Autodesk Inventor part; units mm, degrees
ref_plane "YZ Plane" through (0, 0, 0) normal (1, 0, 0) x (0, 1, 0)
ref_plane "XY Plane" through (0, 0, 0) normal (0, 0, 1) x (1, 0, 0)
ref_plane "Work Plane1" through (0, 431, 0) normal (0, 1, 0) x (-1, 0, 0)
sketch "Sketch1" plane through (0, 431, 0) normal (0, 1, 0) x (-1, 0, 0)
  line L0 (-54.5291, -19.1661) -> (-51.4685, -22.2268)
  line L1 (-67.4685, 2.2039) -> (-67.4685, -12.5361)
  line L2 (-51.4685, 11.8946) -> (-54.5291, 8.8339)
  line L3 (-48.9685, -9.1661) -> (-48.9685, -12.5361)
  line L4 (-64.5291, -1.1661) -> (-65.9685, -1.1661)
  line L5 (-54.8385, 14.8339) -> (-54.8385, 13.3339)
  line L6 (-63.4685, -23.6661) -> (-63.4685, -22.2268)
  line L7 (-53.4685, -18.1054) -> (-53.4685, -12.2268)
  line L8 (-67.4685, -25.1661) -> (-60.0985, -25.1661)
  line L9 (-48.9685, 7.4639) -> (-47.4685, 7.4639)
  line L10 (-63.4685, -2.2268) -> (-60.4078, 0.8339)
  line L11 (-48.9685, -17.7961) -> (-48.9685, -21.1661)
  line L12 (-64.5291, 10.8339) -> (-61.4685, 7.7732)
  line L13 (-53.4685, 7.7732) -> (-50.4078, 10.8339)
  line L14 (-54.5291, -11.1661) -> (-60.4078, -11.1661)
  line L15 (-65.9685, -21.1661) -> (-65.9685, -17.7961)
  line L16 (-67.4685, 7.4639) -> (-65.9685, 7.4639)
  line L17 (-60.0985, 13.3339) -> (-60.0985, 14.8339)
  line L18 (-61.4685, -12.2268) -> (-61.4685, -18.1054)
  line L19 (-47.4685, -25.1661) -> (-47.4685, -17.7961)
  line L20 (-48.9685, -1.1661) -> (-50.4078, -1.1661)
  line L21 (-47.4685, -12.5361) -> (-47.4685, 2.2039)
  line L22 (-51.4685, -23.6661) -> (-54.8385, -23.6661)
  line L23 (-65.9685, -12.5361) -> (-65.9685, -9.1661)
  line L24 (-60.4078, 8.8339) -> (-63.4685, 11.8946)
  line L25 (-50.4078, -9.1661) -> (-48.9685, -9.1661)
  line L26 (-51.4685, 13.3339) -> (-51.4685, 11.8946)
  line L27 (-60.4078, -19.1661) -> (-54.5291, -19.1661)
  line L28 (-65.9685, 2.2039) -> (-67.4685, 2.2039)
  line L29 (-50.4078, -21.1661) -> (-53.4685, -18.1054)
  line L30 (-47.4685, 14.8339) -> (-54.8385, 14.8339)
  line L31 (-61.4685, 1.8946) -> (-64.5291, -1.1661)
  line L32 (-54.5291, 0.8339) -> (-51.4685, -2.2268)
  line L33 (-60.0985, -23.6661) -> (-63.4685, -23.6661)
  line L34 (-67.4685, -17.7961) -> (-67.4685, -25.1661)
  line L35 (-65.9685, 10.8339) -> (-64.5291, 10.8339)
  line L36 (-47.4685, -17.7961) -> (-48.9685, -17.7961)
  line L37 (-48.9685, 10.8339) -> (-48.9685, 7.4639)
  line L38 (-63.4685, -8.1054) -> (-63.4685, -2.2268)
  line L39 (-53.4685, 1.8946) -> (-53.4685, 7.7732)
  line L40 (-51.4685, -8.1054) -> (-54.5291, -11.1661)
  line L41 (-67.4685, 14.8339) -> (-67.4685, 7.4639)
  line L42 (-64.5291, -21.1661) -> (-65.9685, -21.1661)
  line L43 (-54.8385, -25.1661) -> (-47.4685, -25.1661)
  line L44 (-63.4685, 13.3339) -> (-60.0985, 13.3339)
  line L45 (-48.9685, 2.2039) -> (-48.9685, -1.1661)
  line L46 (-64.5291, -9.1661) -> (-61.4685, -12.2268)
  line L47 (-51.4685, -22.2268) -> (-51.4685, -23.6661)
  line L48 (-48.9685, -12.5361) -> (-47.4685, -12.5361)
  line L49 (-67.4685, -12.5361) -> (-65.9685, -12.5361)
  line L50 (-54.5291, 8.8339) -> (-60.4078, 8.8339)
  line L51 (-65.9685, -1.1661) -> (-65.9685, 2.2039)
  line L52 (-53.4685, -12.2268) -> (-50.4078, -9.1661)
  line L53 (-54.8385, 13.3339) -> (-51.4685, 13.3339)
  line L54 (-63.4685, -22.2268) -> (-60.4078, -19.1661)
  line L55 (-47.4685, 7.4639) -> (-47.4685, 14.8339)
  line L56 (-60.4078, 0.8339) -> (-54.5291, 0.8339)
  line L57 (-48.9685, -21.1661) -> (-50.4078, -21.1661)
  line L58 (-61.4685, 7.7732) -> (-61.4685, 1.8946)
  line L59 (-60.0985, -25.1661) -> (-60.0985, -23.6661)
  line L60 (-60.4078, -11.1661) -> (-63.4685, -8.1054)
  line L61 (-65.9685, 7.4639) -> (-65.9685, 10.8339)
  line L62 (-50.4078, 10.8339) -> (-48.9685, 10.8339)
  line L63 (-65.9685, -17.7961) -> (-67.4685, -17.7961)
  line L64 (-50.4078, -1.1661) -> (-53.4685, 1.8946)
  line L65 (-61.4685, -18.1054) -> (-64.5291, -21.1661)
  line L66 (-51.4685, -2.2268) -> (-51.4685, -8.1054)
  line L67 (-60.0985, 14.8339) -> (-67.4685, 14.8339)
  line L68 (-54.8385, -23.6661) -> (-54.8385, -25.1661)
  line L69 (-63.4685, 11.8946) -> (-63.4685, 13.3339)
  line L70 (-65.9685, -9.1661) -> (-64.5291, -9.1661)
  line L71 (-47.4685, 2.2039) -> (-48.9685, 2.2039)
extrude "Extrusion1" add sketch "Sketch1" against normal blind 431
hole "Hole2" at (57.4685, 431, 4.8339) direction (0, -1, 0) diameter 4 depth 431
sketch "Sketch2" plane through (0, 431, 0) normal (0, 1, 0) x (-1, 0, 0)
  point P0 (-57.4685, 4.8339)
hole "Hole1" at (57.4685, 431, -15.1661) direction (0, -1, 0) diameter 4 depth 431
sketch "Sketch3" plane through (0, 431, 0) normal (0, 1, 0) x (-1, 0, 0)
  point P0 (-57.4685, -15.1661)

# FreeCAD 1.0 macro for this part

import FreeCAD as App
import Part
import Sketcher
Q = App.Units.Quantity


def add_polygon(sketch, points):
    """Adds a closed chain of lines whose ends are joined by coincident constraints."""
    first, n = sketch.GeometryCount, len(points)
    for a, b in zip(points, points[1:] + points[:1]):
        sketch.addGeometry(Part.LineSegment(App.Vector(*a, 0), App.Vector(*b, 0)), False)
    for i in range(n):
        sketch.addConstraint(Sketcher.Constraint("Coincident", first + i, 2, first + (i + 1) % n, 1))

doc = App.newDocument("Part")
body = doc.addObject("PartDesign::Body", "Body")

# Sketch on XZ plane
sketch1 = body.newObject("Sketcher::SketchObject", "Sketch")
sketch1.AttachmentSupport = (doc.getObject("XZ_Plane"), [""])
sketch1.MapMode = "FlatFace"
sketch1.AttachmentOffset = App.Placement(App.Vector(0, 0, -431), App.Rotation())
add_polygon(sketch1, [(60.4, -19.2), (54.5, -19.2), (51.5, -22.2), (51.5, -23.7), (54.8, -23.7), (54.8, -25.2), (47.5, -25.2), (47.5, -17.8), (49, -17.8), (49, -21.2), (50.4, -21.2), (53.5, -18.1), (53.5, -12.2), (50.4, -9.2), (49, -9.2), (49, -12.5), (47.5, -12.5), (47.5, 2.2), (49, 2.2), (49, -1.2), (50.4, -1.2), (53.5, 1.9), (53.5, 7.8), (50.4, 10.8), (49, 10.8), (49, 7.5), (47.5, 7.5), (47.5, 14.8), (54.8, 14.8), (54.8, 13.3), (51.5, 13.3), (51.5, 11.9), (54.5, 8.8), (60.4, 8.8), (63.5, 11.9), (63.5, 13.3), (60.1, 13.3), (60.1, 14.8), (67.5, 14.8), (67.5, 7.5), (66, 7.5), (66, 10.8), (64.5, 10.8), (61.5, 7.8), (61.5, 1.9), (64.5, -1.2), (66, -1.2), (66, 2.2), (67.5, 2.2), (67.5, -12.5), (66, -12.5), (66, -9.2), (64.5, -9.2), (61.5, -12.2), (61.5, -18.1), (64.5, -21.2), (66, -21.2), (66, -17.8), (67.5, -17.8), (67.5, -25.2), (60.1, -25.2), (60.1, -23.7), (63.5, -23.7), (63.5, -22.2)])  # lines 0-63
add_polygon(sketch1, [(63.5, -8.1), (63.5, -2.2), (60.4, 0.8), (54.5, 0.8), (51.5, -2.2), (51.5, -8.1), (54.5, -11.2), (60.4, -11.2)])  # lines 64-71
sketch1.addConstraint([
    Sketcher.Constraint("Horizontal", 0),
    Sketcher.Constraint("Vertical", 2),
    Sketcher.Constraint("Horizontal", 3),
    Sketcher.Constraint("Vertical", 4),
    Sketcher.Constraint("Horizontal", 5),
    Sketcher.Constraint("Vertical", 6),
    Sketcher.Constraint("Horizontal", 7),
    Sketcher.Constraint("Vertical", 8),
    Sketcher.Constraint("Horizontal", 9),
    Sketcher.Constraint("Vertical", 11),
    Sketcher.Constraint("Horizontal", 13),
    Sketcher.Constraint("Vertical", 14),
    Sketcher.Constraint("Horizontal", 15),
    Sketcher.Constraint("Vertical", 16),
    Sketcher.Constraint("Horizontal", 17),
    Sketcher.Constraint("Vertical", 18),
    Sketcher.Constraint("Horizontal", 19),
    Sketcher.Constraint("Vertical", 21),
    Sketcher.Constraint("Horizontal", 23),
    Sketcher.Constraint("Vertical", 24),
    Sketcher.Constraint("Horizontal", 25),
    Sketcher.Constraint("Vertical", 26),
    Sketcher.Constraint("Horizontal", 27),
    Sketcher.Constraint("Vertical", 28),
    Sketcher.Constraint("Horizontal", 29),
    Sketcher.Constraint("Vertical", 30),
    Sketcher.Constraint("Horizontal", 32),
    Sketcher.Constraint("Vertical", 34),
    Sketcher.Constraint("Horizontal", 35),
    Sketcher.Constraint("Vertical", 36),
    Sketcher.Constraint("Horizontal", 37),
    Sketcher.Constraint("Vertical", 38),
    Sketcher.Constraint("Horizontal", 39),
    Sketcher.Constraint("Vertical", 40),
    Sketcher.Constraint("Horizontal", 41),
    Sketcher.Constraint("Vertical", 43),
    Sketcher.Constraint("Horizontal", 45),
    Sketcher.Constraint("Vertical", 46),
    Sketcher.Constraint("Horizontal", 47),
    Sketcher.Constraint("Vertical", 48),
    Sketcher.Constraint("Horizontal", 49),
    Sketcher.Constraint("Vertical", 50),
    Sketcher.Constraint("Horizontal", 51),
    Sketcher.Constraint("Vertical", 53),
    Sketcher.Constraint("Horizontal", 55),
    Sketcher.Constraint("Vertical", 56),
    Sketcher.Constraint("Horizontal", 57),
    Sketcher.Constraint("Vertical", 58),
    Sketcher.Constraint("Horizontal", 59),
    Sketcher.Constraint("Vertical", 60),
    Sketcher.Constraint("Horizontal", 61),
    Sketcher.Constraint("Vertical", 62),
    Sketcher.Constraint("Vertical", 64),
    Sketcher.Constraint("Horizontal", 66),
    Sketcher.Constraint("Vertical", 68),
    Sketcher.Constraint("Horizontal", 70),
    Sketcher.Constraint("Parallel", 1, 10),
    Sketcher.Constraint("Perpendicular", 10, 12),
    Sketcher.Constraint("Perpendicular", 12, 20),
    Sketcher.Constraint("Perpendicular", 20, 22),
    Sketcher.Constraint("Parallel", 22, 31),
    Sketcher.Constraint("Perpendicular", 31, 33),
    Sketcher.Constraint("Parallel", 33, 42),
    Sketcher.Constraint("Perpendicular", 42, 44),
    Sketcher.Constraint("Perpendicular", 44, 52),
    Sketcher.Constraint("Perpendicular", 52, 54),
    Sketcher.Constraint("Parallel", 54, 63),
    Sketcher.Constraint("Parallel", 63, 65),
    Sketcher.Constraint("Perpendicular", 65, 67),
    Sketcher.Constraint("Perpendicular", 67, 69),
    Sketcher.Constraint("Perpendicular", 69, 71),
    Sketcher.Constraint("Horizontal", 30, 2, 33, 2),
    Sketcher.Constraint("Horizontal", 29, 2, 34, 2),
    Sketcher.Constraint("Horizontal", 27, 2, 36, 2),
    Sketcher.Constraint("Horizontal", 25, 2, 38, 2),
    Sketcher.Constraint("Horizontal", 23, 2, 40, 2),
    Sketcher.Constraint("Horizontal", 21, 2, 42, 2),
    Sketcher.Constraint("Horizontal", 20, 2, 43, 2),
    Sketcher.Constraint("Horizontal", 19, 2, 44, 2),
    Sketcher.Constraint("Horizontal", 17, 2, 46, 2),
    Sketcher.Constraint("Horizontal", 15, 2, 48, 2),
    Sketcher.Constraint("Horizontal", 13, 2, 50, 2),
    Sketcher.Constraint("Horizontal", 11, 2, 52, 2),
    Sketcher.Constraint("Horizontal", 10, 2, 53, 2),
    Sketcher.Constraint("Horizontal", 9, 2, 54, 2),
    Sketcher.Constraint("Horizontal", 7, 2, 56, 2),
    Sketcher.Constraint("Horizontal", 5, 2, 58, 2),
    Sketcher.Constraint("Horizontal", 3, 2, 60, 2),
    Sketcher.Constraint("Horizontal", 1, 2, 62, 2),
    Sketcher.Constraint("Horizontal", 64, 2, 67, 2),
    Sketcher.Constraint("Horizontal", 68, 2, 71, 2),
    Sketcher.Constraint("Vertical", 9, 2, 12, 2),
    Sketcher.Constraint("Vertical", 8, 2, 13, 2),
    Sketcher.Constraint("Vertical", 6, 2, 15, 2),
    Sketcher.Constraint("Vertical", 14, 2, 17, 2),
    Sketcher.Constraint("Vertical", 12, 2, 19, 2),
    Sketcher.Constraint("Vertical", 11, 2, 20, 2),
    Sketcher.Constraint("Vertical", 19, 2, 22, 2),
    Sketcher.Constraint("Vertical", 18, 2, 23, 2),
    Sketcher.Constraint("Vertical", 16, 2, 25, 2),
    Sketcher.Constraint("Vertical", 4, 2, 27, 2),
    Sketcher.Constraint("Vertical", 2, 2, 29, 2),
    Sketcher.Constraint("Vertical", 0, 2, 31, 2),
    Sketcher.Constraint("Vertical", 41, 2, 44, 2),
    Sketcher.Constraint("Vertical", 40, 2, 45, 2),
    Sketcher.Constraint("Vertical", 38, 2, 47, 2),
    Sketcher.Constraint("Vertical", 46, 2, 49, 2),
    Sketcher.Constraint("Vertical", 44, 2, 51, 2),
    Sketcher.Constraint("Vertical", 50, 2, 55, 2),
    Sketcher.Constraint("Vertical", 48, 2, 57, 2),
    Sketcher.Constraint("Vertical", 36, 2, 59, 2),
    Sketcher.Constraint("Vertical", 34, 2, 61, 2),
    Sketcher.Constraint("Vertical", 62, 2, 64, 2),
    Sketcher.Constraint("Vertical", 63, 2, 65, 2),
    Sketcher.Constraint("Vertical", 31, 2, 66, 2),
    Sketcher.Constraint("Vertical", 66, 2, 69, 2),
    Sketcher.Constraint("Equal", 29, 35),
    Sketcher.Constraint("Equal", 27, 37),
    Sketcher.Constraint("Equal", 25, 39),
    Sketcher.Constraint("Equal", 23, 41),
    Sketcher.Constraint("Equal", 55, 2),
    Sketcher.Constraint("Equal", 57, 4),
    Sketcher.Constraint("Equal", 59, 6),
    Sketcher.Constraint("Equal", 61, 8),
    Sketcher.Constraint("Equal", 70, 11),
    Sketcher.Constraint("Equal", 8, 14),
    Sketcher.Constraint("Equal", 14, 18),
    Sketcher.Constraint("Equal", 11, 21),
    Sketcher.Constraint("Equal", 18, 24),
    Sketcher.Constraint("Equal", 6, 26),
    Sketcher.Constraint("Equal", 4, 28),
    Sketcher.Constraint("Equal", 2, 30),
    Sketcher.Constraint("Equal", 53, 64),
    Sketcher.Constraint("Equal", 1, 10),
    Sketcher.Constraint("DistanceX", 7, 1, 7, 2, Q("1.5 mm")),
    Sketcher.Constraint("DistanceX", 3, 1, 3, 2, Q("3.37 mm")),
    Sketcher.Constraint("DistanceX", 5, 2, 5, 1, Q("7.37 mm")),
    Sketcher.Constraint("DistanceY", 16, 1, 16, 2, Q("14.74 mm")),
    Sketcher.Constraint("DistanceX", 0, 2, 0, 1, Q("5.8787 mm")),
    Sketcher.Constraint("DistanceX", 9, 1, 9, 2, Q("1.4393 mm")),
    Sketcher.Constraint("DistanceX", -1, 1, 0, 2, Q("54.529 mm")),
    Sketcher.Constraint("DistanceY", 0, 2, -1, 1, Q("19.166 mm")),
    Sketcher.Constraint("DistanceY", 2, 2, -1, 1, Q("23.666 mm")),
    Sketcher.Constraint("DistanceY", -1, 1, 65, 2, Q("0.834 mm")),
])
pad1 = body.newObject("PartDesign::Pad", "Pad")
pad1.Profile = sketch1
pad1.Length = 431

# Sketch on XZ plane
sketch2 = body.newObject("Sketcher::SketchObject", "Sketch001")
sketch2.AttachmentSupport = (doc.getObject("XZ_Plane"), [""])
sketch2.MapMode = "FlatFace"
sketch2.AttachmentOffset = App.Placement(App.Vector(0, 0, -431), App.Rotation())
sketch2.addGeometry(Part.Circle(App.Vector(57.5, 4.8, 0), App.Vector(0, 0, 1), 2), False)
sketch2.addConstraint([
    Sketcher.Constraint("Diameter", 0, Q("4 mm")),
    Sketcher.Constraint("DistanceY", -1, 1, 0, 3, Q("4.834 mm")),
    Sketcher.Constraint("DistanceX", -1, 1, 0, 3, Q("57.4685 mm")),
])
doc.recompute()
hole = body.newObject("PartDesign::Hole", "Hole")
hole.Profile = sketch2
hole.ThreadType = "None"
hole.Diameter = 4
hole.DepthType = "Dimension"
hole.Depth = 431
hole.DrillPoint = "Flat"
hole.Reversed = True

# Sketch on XZ plane
sketch3 = body.newObject("Sketcher::SketchObject", "Sketch002")
sketch3.AttachmentSupport = (doc.getObject("XZ_Plane"), [""])
sketch3.MapMode = "FlatFace"
sketch3.AttachmentOffset = App.Placement(App.Vector(0, 0, -431), App.Rotation())
sketch3.addGeometry(Part.Circle(App.Vector(57.5, -15.2, 0), App.Vector(0, 0, 1), 2), False)
sketch3.addConstraint([
    Sketcher.Constraint("Diameter", 0, Q("4 mm")),
    Sketcher.Constraint("DistanceY", 0, 3, -1, 1, Q("15.166 mm")),
    Sketcher.Constraint("DistanceX", -1, 1, 0, 3, Q("57.4685 mm")),
])
doc.recompute()
hole2 = body.newObject("PartDesign::Hole", "Hole001")
hole2.Profile = sketch3
hole2.ThreadType = "None"
hole2.Diameter = 4
hole2.DepthType = "Dimension"
hole2.Depth = 431
hole2.DrillPoint = "Flat"
hole2.Reversed = True

doc.recompute()
